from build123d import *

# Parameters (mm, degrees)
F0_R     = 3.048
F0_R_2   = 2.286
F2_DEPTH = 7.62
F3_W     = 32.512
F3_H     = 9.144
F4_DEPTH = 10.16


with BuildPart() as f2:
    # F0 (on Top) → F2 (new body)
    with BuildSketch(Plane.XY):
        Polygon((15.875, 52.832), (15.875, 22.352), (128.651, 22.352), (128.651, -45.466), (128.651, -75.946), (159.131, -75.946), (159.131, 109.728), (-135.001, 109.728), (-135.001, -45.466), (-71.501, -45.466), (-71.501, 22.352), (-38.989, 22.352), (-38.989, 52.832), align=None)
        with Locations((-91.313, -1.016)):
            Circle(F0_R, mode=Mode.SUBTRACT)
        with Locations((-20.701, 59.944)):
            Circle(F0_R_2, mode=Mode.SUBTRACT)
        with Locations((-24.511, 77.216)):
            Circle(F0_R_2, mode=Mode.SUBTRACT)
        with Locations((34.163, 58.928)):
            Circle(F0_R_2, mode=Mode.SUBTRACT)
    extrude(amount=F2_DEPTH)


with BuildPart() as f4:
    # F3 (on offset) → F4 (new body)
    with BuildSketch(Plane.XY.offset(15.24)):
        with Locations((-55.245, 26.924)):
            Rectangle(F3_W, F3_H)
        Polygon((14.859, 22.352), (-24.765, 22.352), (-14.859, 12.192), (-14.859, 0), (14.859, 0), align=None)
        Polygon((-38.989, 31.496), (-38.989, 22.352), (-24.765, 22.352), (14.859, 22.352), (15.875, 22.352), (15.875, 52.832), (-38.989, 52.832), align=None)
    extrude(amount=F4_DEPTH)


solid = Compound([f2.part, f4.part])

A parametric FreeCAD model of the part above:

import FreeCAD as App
import Part
import Sketcher

V = App.Vector
Q = App.Units.Quantity

doc = App.newDocument("Part")
body = doc.addObject("PartDesign::Body", "Body")

# Sketch on XY plane
sketch1 = doc.addObject("Sketcher::SketchObject", "Sketch")
body.addObject(sketch1)
sketch1.AttachmentSupport = (doc.XY_Plane, [""])
sketch1.MapMode = "FlatFace"
sketch1.addGeometry(Part.LineSegment(V(15.9, 52.8, 0), V(15.9, 22.4, 0)), False)
sketch1.addGeometry(Part.LineSegment(V(15.9, 22.4, 0), V(128.7, 22.4, 0)), False)
sketch1.addGeometry(Part.LineSegment(V(128.7, 22.4, 0), V(128.7, -75.9, 0)), False)
sketch1.addGeometry(Part.LineSegment(V(128.7, -75.9, 0), V(159.1, -75.9, 0)), False)
sketch1.addGeometry(Part.LineSegment(V(159.1, -75.9, 0), V(159.1, 109.7, 0)), False)
sketch1.addGeometry(Part.LineSegment(V(159.1, 109.7, 0), V(-135, 109.7, 0)), False)
sketch1.addGeometry(Part.LineSegment(V(-135, 109.7, 0), V(-135, -45.5, 0)), False)
sketch1.addGeometry(Part.LineSegment(V(-135, -45.5, 0), V(-71.5, -45.5, 0)), False)
sketch1.addGeometry(Part.LineSegment(V(-71.5, -45.5, 0), V(-71.5, 22.4, 0)), False)
sketch1.addGeometry(Part.LineSegment(V(-71.5, 22.4, 0), V(-39, 22.4, 0)), False)
sketch1.addGeometry(Part.LineSegment(V(-39, 22.4, 0), V(-39, 52.8, 0)), False)
sketch1.addGeometry(Part.LineSegment(V(-39, 52.8, 0), V(15.9, 52.8, 0)), False)
sketch1.addGeometry(Part.Circle(V(-91.3, -1, 0), V(0, 0, 1), 3), False)
sketch1.addGeometry(Part.Circle(V(-20.7, 59.9, 0), V(0, 0, 1), 2.3), False)
sketch1.addGeometry(Part.Circle(V(-24.5, 77.2, 0), V(0, 0, 1), 2.3), False)
sketch1.addGeometry(Part.Circle(V(34.2, 58.9, 0), V(0, 0, 1), 2.3), False)
sketch1.addConstraint(Sketcher.Constraint("Coincident", 0, 2, 1, 1))
sketch1.addConstraint(Sketcher.Constraint("Coincident", 1, 2, 2, 1))
sketch1.addConstraint(Sketcher.Constraint("Coincident", 2, 2, 3, 1))
sketch1.addConstraint(Sketcher.Constraint("Coincident", 3, 2, 4, 1))
sketch1.addConstraint(Sketcher.Constraint("Coincident", 4, 2, 5, 1))
sketch1.addConstraint(Sketcher.Constraint("Coincident", 5, 2, 6, 1))
sketch1.addConstraint(Sketcher.Constraint("Coincident", 6, 2, 7, 1))
sketch1.addConstraint(Sketcher.Constraint("Coincident", 7, 2, 8, 1))
sketch1.addConstraint(Sketcher.Constraint("Coincident", 8, 2, 9, 1))
sketch1.addConstraint(Sketcher.Constraint("Coincident", 9, 2, 10, 1))
sketch1.addConstraint(Sketcher.Constraint("Coincident", 10, 2, 11, 1))
sketch1.addConstraint(Sketcher.Constraint("Coincident", 11, 2, 0, 1))
sketch1.addConstraint(Sketcher.Constraint("Vertical", 0))
sketch1.addConstraint(Sketcher.Constraint("Horizontal", 1))
sketch1.addConstraint(Sketcher.Constraint("Vertical", 2))
sketch1.addConstraint(Sketcher.Constraint("Horizontal", 3))
sketch1.addConstraint(Sketcher.Constraint("Vertical", 4))
sketch1.addConstraint(Sketcher.Constraint("Horizontal", 5))
sketch1.addConstraint(Sketcher.Constraint("Vertical", 6))
sketch1.addConstraint(Sketcher.Constraint("Horizontal", 7))
sketch1.addConstraint(Sketcher.Constraint("Vertical", 8))
sketch1.addConstraint(Sketcher.Constraint("Horizontal", 9))
sketch1.addConstraint(Sketcher.Constraint("Vertical", 10))
sketch1.addConstraint(Sketcher.Constraint("Horizontal", 11))
sketch1.addConstraint(Sketcher.Constraint("Equal", 13, 14))
sketch1.addConstraint(Sketcher.Constraint("Equal", 14, 15))
sketch1.addConstraint(Sketcher.Constraint("Horizontal", 1, 2, 8, 2))
sketch1.addConstraint(Sketcher.Constraint("Equal", 3, 0))
sketch1.addConstraint(Sketcher.Constraint("Diameter", 12, Q("0.24 in")))
sketch1.addConstraint(Sketcher.Constraint("Diameter", 13, Q("0.18 in")))
sketch1.addConstraint(Sketcher.Constraint("DistanceX", 3, 1, 3, 2, Q("1.2 in")))
sketch1.addConstraint(Sketcher.Constraint("DistanceX", 7, 1, 7, 2, Q("2.5 in")))
sketch1.addConstraint(Sketcher.Constraint("DistanceY", 15, 3, 4, 2, Q("2 in")))
sketch1.addConstraint(Sketcher.Constraint("DistanceX", 7, 2, 13, 3, Q("2 in")))
sketch1.addConstraint(Sketcher.Constraint("DistanceX", 1, 1, 1, 2, Q("4.44 in")))
sketch1.addConstraint(Sketcher.Constraint("DistanceX", 5, 2, 5, 1, Q("11.58 in")))
sketch1.addConstraint(Sketcher.Constraint("DistanceX", 9, 1, 9, 2, Q("1.28 in")))
sketch1.addConstraint(Sketcher.Constraint("DistanceY", 2, 2, 2, 1, Q("3.87 in")))
sketch1.addConstraint(Sketcher.Constraint("DistanceY", 4, 1, 4, 2, Q("7.31 in")))
sketch1.addConstraint(Sketcher.Constraint("DistanceY", 6, 2, 6, 1, Q("6.11 in")))
sketch1.addConstraint(Sketcher.Constraint("DistanceY", 12, 3, 13, 3, Q("2.4 in")))
sketch1.addConstraint(Sketcher.Constraint("DistanceY", 12, 3, -1, 1, Q("0.04 in")))
sketch1.addConstraint(Sketcher.Constraint("DistanceY", -1, 1, 14, 3, Q("3.04 in")))
sketch1.addConstraint(Sketcher.Constraint("DistanceY", -1, 1, 15, 3, Q("2.32 in")))
sketch1.addConstraint(Sketcher.Constraint("DistanceX", 12, 3, 13, 3, Q("2.78 in")))
sketch1.addConstraint(Sketcher.Constraint("DistanceX", 14, 3, 13, 3, Q("0.15 in")))
sketch1.addConstraint(Sketcher.Constraint("DistanceX", 13, 3, 15, 3, Q("2.16 in")))
sketch1.addConstraint(Sketcher.Constraint("DistanceX", 12, 3, -1, 1, Q("3.595 in")))
pad1 = doc.addObject("PartDesign::Pad", "Pad")
body.addObject(pad1)
pad1.Profile = sketch1
pad1.Length = Q("0.3 in")
body2 = doc.addObject("PartDesign::Body", "Body001")

# Sketch on XY plane
sketch2 = doc.addObject("Sketcher::SketchObject", "Sketch001")
body2.addObject(sketch2)
sketch2.AttachmentSupport = (doc.getObject("XY_Plane001"), [""])
sketch2.MapMode = "FlatFace"
sketch2.AttachmentOffset = App.Placement(V(0, 0, 0.6 * 25.4), App.Rotation())
sketch2.addGeometry(Part.LineSegment(V(-71.5, 31.5, 0), V(-71.5, 22.4, 0)), False)
sketch2.addGeometry(Part.LineSegment(V(-71.5, 22.4, 0), V(-24.8, 22.4, 0)), False)
sketch2.addGeometry(Part.LineSegment(V(-24.8, 22.4, 0), V(-14.9, 12.2, 0)), False)
sketch2.addGeometry(Part.LineSegment(V(-14.9, 12.2, 0), V(-14.9, 0, 0)), False)
sketch2.addGeometry(Part.LineSegment(V(-14.9, 0, 0), V(14.9, 0, 0)), False)
sketch2.addGeometry(Part.LineSegment(V(14.9, 0, 0), V(14.9, 22.4, 0)), False)
sketch2.addGeometry(Part.LineSegment(V(14.9, 22.4, 0), V(15.9, 22.4, 0)), False)
sketch2.addGeometry(Part.LineSegment(V(15.9, 22.4, 0), V(15.9, 52.8, 0)), False)
sketch2.addGeometry(Part.LineSegment(V(15.9, 52.8, 0), V(-39, 52.8, 0)), False)
sketch2.addGeometry(Part.LineSegment(V(-39, 52.8, 0), V(-39, 31.5, 0)), False)
sketch2.addGeometry(Part.LineSegment(V(-39, 31.5, 0), V(-71.5, 31.5, 0)), False)
sketch2.addConstraint(Sketcher.Constraint("Coincident", 0, 2, 1, 1))
sketch2.addConstraint(Sketcher.Constraint("Coincident", 1, 2, 2, 1))
sketch2.addConstraint(Sketcher.Constraint("Coincident", 2, 2, 3, 1))
sketch2.addConstraint(Sketcher.Constraint("Coincident", 3, 2, 4, 1))
sketch2.addConstraint(Sketcher.Constraint("Coincident", 4, 2, 5, 1))
sketch2.addConstraint(Sketcher.Constraint("Coincident", 5, 2, 6, 1))
sketch2.addConstraint(Sketcher.Constraint("Coincident", 6, 2, 7, 1))
sketch2.addConstraint(Sketcher.Constraint("Coincident", 7, 2, 8, 1))
sketch2.addConstraint(Sketcher.Constraint("Coincident", 8, 2, 9, 1))
sketch2.addConstraint(Sketcher.Constraint("Coincident", 9, 2, 10, 1))
sketch2.addConstraint(Sketcher.Constraint("Coincident", 10, 2, 0, 1))
sketch2.addConstraint(Sketcher.Constraint("Vertical", 0))
sketch2.addConstraint(Sketcher.Constraint("Horizontal", 1))
sketch2.addConstraint(Sketcher.Constraint("Vertical", 3))
sketch2.addConstraint(Sketcher.Constraint("Horizontal", 4))
sketch2.addConstraint(Sketcher.Constraint("Vertical", 5))
sketch2.addConstraint(Sketcher.Constraint("Horizontal", 6))
sketch2.addConstraint(Sketcher.Constraint("Vertical", 7))
sketch2.addConstraint(Sketcher.Constraint("Horizontal", 8))
sketch2.addConstraint(Sketcher.Constraint("Vertical", 9))
sketch2.addConstraint(Sketcher.Constraint("Horizontal", 10))
sketch2.addConstraint(Sketcher.Constraint("Symmetric", 3, 2, 4, 2, -1, 1))
sketch2.addConstraint(Sketcher.Constraint("Horizontal", 1, 2, 5, 2))
sketch2.addConstraint(Sketcher.Constraint("DistanceY", 7, 1, 7, 2, Q("1.2 in")))
sketch2.addConstraint(Sketcher.Constraint("DistanceX", 1, 1, 1, 2, Q("1.84 in")))
sketch2.addConstraint(Sketcher.Constraint("DistanceX", 4, 1, 4, 2, Q("1.17 in")))
sketch2.addConstraint(Sketcher.Constraint("DistanceX", 6, 1, 6, 2, Q("0.04 in")))
sketch2.addConstraint(Sketcher.Constraint("DistanceX", 8, 2, 8, 1, Q("2.16 in")))
sketch2.addConstraint(Sketcher.Constraint("DistanceX", 10, 2, 10, 1, Q("1.28 in")))
sketch2.addConstraint(Sketcher.Constraint("DistanceY", 0, 2, 0, 1, Q("0.36 in")))
sketch2.addConstraint(Sketcher.Constraint("DistanceY", 3, 2, 3, 1, Q("0.48 in")))
sketch2.addConstraint(Sketcher.Constraint("DistanceY", 5, 1, 5, 2, Q("0.88 in")))
pad2 = doc.addObject("PartDesign::Pad", "Pad001")
body2.addObject(pad2)
pad2.Profile = sketch2
pad2.Length = Q("0.4 in")

doc.recompute()
